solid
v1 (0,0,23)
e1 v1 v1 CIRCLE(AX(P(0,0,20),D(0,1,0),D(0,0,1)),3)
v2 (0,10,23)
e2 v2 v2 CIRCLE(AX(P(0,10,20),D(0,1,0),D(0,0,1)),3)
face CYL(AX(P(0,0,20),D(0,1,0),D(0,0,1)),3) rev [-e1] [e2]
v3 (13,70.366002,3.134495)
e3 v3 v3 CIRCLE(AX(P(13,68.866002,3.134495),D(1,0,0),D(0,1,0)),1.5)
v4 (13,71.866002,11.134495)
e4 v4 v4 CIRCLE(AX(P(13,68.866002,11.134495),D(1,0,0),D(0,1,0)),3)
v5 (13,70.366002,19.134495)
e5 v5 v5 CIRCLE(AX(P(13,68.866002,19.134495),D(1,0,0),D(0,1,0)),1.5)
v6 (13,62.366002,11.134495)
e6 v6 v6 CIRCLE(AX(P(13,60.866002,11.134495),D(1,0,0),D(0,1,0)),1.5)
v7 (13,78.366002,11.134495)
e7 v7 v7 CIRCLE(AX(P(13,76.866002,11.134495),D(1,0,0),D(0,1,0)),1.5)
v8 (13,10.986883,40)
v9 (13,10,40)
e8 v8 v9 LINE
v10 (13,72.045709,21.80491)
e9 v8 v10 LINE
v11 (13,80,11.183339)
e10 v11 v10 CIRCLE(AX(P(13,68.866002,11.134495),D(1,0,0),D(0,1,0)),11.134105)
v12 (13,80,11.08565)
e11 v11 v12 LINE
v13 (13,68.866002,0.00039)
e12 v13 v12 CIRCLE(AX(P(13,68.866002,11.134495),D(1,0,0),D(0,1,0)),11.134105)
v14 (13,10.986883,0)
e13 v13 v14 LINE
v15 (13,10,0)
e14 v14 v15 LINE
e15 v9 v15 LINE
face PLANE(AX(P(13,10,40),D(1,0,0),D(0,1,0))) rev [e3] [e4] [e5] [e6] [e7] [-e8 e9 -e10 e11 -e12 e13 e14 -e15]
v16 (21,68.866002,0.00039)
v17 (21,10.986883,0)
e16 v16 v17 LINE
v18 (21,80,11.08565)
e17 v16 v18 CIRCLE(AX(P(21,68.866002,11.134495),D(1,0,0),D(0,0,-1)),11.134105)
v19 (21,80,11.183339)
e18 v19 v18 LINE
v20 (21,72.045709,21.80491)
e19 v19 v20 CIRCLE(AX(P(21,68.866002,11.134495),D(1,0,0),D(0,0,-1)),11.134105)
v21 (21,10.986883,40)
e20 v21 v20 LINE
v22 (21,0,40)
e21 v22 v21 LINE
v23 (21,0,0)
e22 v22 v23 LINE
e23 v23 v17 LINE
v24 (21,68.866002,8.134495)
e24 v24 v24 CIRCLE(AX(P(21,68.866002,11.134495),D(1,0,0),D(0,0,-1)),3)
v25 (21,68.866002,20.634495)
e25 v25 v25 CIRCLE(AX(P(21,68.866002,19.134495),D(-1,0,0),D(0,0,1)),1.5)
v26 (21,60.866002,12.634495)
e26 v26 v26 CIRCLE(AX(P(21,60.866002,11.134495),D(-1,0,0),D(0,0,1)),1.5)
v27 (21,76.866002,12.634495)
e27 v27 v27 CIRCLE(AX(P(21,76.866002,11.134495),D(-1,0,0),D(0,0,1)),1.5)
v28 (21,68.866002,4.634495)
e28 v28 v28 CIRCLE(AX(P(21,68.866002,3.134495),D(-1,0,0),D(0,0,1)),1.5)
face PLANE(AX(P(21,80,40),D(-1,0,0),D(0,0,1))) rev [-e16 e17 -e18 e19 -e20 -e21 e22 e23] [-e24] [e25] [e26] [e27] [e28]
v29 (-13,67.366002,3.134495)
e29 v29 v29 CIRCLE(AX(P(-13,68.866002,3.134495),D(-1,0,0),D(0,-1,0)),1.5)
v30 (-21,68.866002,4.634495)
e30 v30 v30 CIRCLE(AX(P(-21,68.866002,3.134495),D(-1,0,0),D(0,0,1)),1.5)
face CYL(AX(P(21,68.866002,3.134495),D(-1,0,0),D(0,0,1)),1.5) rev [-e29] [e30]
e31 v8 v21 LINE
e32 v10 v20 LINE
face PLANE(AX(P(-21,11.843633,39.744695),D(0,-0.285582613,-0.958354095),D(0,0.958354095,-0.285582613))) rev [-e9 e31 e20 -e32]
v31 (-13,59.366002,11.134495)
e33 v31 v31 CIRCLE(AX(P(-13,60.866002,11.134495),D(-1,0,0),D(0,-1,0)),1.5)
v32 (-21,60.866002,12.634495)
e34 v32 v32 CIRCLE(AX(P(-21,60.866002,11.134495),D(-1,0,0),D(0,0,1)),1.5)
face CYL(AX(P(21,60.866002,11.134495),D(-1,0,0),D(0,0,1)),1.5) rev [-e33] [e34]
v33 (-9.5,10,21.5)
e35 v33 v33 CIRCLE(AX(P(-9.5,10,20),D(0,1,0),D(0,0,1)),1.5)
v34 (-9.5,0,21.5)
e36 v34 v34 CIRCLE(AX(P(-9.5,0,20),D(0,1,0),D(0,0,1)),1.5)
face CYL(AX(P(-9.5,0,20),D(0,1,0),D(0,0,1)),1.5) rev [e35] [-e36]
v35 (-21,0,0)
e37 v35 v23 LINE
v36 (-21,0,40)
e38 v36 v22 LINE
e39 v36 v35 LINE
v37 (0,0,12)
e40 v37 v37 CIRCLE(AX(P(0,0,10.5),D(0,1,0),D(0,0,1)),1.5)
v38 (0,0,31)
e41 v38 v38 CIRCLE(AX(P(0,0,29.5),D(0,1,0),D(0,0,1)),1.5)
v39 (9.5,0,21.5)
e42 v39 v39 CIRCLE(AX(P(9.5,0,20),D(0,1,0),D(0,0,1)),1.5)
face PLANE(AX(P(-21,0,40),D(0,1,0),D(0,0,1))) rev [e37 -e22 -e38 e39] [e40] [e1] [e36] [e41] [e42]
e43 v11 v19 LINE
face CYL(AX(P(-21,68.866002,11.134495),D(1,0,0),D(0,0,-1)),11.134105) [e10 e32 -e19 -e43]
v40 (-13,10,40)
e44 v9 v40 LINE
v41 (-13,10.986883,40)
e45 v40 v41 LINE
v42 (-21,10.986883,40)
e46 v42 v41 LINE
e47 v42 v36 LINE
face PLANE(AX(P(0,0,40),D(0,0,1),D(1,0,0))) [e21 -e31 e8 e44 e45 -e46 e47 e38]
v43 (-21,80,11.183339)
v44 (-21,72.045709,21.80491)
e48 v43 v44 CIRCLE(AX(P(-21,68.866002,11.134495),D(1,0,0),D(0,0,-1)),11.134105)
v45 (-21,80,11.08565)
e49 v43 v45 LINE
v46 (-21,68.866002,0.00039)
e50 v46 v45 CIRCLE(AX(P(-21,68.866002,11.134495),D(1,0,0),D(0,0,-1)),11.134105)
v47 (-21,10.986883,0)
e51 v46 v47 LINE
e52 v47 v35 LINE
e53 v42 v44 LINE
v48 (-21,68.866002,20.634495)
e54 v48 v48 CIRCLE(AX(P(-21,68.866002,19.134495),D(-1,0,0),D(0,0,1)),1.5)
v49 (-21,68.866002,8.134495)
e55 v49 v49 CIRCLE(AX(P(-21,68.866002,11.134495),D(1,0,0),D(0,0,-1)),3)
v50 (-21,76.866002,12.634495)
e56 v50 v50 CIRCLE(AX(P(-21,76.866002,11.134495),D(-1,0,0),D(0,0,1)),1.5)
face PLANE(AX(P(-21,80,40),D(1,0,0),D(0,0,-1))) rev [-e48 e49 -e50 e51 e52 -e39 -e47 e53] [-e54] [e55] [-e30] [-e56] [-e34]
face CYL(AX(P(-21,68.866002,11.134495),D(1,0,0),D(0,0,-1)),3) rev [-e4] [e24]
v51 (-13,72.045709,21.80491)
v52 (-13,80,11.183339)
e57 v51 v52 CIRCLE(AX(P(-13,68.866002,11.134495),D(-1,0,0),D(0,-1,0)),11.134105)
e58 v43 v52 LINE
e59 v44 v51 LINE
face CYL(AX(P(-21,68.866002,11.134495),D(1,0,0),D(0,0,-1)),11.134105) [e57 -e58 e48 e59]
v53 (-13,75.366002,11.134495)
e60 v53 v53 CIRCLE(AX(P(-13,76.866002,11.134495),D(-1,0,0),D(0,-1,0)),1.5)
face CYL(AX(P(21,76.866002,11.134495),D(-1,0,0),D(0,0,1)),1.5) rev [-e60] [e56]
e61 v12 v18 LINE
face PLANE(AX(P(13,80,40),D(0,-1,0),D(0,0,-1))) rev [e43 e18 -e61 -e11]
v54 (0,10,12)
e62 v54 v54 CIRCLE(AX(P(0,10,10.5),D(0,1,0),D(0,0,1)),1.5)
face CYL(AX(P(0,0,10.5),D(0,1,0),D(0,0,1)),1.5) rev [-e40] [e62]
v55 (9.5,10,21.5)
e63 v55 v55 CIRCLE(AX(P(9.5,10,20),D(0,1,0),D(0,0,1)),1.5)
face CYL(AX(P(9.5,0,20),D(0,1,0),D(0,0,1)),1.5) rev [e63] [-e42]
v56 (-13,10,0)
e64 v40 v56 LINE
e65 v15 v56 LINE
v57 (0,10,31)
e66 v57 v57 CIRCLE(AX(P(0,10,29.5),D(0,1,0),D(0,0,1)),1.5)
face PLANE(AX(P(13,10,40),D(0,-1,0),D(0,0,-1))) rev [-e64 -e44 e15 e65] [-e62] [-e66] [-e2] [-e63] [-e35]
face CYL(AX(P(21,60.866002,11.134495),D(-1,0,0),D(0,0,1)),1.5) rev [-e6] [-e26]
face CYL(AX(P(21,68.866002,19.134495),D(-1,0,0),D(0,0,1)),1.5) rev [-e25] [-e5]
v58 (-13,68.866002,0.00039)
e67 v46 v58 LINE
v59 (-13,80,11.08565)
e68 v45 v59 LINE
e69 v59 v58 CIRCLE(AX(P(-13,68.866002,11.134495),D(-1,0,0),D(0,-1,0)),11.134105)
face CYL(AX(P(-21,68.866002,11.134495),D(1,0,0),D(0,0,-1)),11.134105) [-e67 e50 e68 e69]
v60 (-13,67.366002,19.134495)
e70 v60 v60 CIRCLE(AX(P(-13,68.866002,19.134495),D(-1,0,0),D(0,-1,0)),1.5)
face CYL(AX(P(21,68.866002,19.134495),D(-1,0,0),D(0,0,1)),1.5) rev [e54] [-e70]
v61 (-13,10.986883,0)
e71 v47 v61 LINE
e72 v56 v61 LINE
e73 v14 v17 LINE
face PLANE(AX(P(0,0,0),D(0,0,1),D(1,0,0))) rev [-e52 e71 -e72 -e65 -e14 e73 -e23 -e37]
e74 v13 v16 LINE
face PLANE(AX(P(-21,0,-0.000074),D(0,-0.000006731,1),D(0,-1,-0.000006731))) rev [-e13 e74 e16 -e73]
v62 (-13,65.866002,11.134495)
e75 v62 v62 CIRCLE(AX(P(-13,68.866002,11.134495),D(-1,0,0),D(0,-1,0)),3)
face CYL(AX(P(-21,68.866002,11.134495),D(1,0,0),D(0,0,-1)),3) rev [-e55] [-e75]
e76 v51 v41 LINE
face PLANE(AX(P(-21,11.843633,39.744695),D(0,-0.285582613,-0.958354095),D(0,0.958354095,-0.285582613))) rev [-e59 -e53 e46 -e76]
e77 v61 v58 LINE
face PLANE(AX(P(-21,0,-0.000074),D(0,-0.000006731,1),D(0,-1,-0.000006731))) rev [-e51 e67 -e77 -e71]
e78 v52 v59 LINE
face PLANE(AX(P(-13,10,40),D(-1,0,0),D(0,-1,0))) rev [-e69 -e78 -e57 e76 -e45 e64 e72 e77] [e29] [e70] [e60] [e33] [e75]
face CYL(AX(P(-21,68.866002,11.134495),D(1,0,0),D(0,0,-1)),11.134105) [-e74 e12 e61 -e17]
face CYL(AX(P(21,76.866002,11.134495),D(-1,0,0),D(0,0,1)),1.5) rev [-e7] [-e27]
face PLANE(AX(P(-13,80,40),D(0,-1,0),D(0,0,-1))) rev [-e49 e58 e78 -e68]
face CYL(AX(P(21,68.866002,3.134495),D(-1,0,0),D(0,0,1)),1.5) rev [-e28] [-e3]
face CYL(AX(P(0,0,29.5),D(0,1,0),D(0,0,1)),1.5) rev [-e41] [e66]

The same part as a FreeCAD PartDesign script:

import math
import FreeCAD as App
import Part
import Sketcher
Q = App.Units.Quantity

doc = App.newDocument("Part")
body = doc.addObject("PartDesign::Body", "Body")

# Sketch on XY plane
sketch1 = doc.addObject("Sketcher::SketchObject", "Sketch")
body.addObject(sketch1)
sketch1.AttachmentSupport = (doc.XY_Plane, [""])
sketch1.MapMode = "FlatFace"
sketch1.addGeometry([
    Part.LineSegment(App.Vector(13, 10, 0), App.Vector(-13, 10, 0)),  # 0
    Part.LineSegment(App.Vector(-13, 10, 0), App.Vector(-13, 80, 0)),  # 1
    Part.LineSegment(App.Vector(-13, 80, 0), App.Vector(-21, 80, 0)),  # 2
    Part.LineSegment(App.Vector(-21, 80, 0), App.Vector(-21, 0, 0)),  # 3
    Part.LineSegment(App.Vector(-21, 0, 0), App.Vector(21, 0, 0)),  # 4
    Part.LineSegment(App.Vector(21, 0, 0), App.Vector(21, 80, 0)),  # 5
    Part.LineSegment(App.Vector(21, 80, 0), App.Vector(13, 80, 0)),  # 6
    Part.LineSegment(App.Vector(13, 80, 0), App.Vector(13, 10, 0)),  # 7
], False)
sketch1.addConstraint([
    Sketcher.Constraint("Coincident", 0, 2, 1, 1),
    Sketcher.Constraint("Coincident", 1, 2, 2, 1),
    Sketcher.Constraint("Coincident", 2, 2, 3, 1),
    Sketcher.Constraint("Coincident", 3, 2, 4, 1),
    Sketcher.Constraint("Coincident", 4, 2, 5, 1),
    Sketcher.Constraint("Coincident", 5, 2, 6, 1),
    Sketcher.Constraint("Coincident", 6, 2, 7, 1),
    Sketcher.Constraint("Coincident", 7, 2, 0, 1),
    Sketcher.Constraint("Horizontal", 0),
    Sketcher.Constraint("Vertical", 1),
    Sketcher.Constraint("Horizontal", 2),
    Sketcher.Constraint("Vertical", 3),
    Sketcher.Constraint("Horizontal", 4),
    Sketcher.Constraint("Vertical", 5),
    Sketcher.Constraint("Horizontal", 6),
    Sketcher.Constraint("Vertical", 7),
    Sketcher.Constraint("Symmetric", 3, 2, 4, 2, -1, 1),
    Sketcher.Constraint("Symmetric", 1, 2, 6, 2, -2),
    Sketcher.Constraint("DistanceX", 0, 2, 0, 1, Q("26 mm")),
    Sketcher.Constraint("DistanceX", 2, 2, 2, 1, Q("8 mm")),
    Sketcher.Constraint("DistanceY", 1, 1, 1, 2, Q("70 mm")),
    Sketcher.Constraint("DistanceY", 3, 2, 3, 1, Q("80 mm")),
])
pad1 = doc.addObject("PartDesign::Pad", "Pad")
body.addObject(pad1)
pad1.Profile = sketch1
pad1.Length = 40

# Sketch on YZ plane
sketch2 = doc.addObject("Sketcher::SketchObject", "Sketch001")
body.addObject(sketch2)
sketch2.AttachmentSupport = (doc.YZ_Plane, [""])
sketch2.MapMode = "FlatFace"
sketch2.AttachmentOffset = App.Placement(App.Vector(0, 0, 21), App.Rotation())
sketch2.addGeometry([
    Part.LineSegment(App.Vector(80, 40, 0), App.Vector(10.986883, 40, 0)),  # 0
    Part.LineSegment(App.Vector(10.986883, 40, 0), App.Vector(72.045709, 21.80491, 0)),  # 1
    Part.ArcOfCircle(Part.Circle(App.Vector(68.866002, 11.134495, 0), App.Vector(0, 0, 1), 11.134105), math.radians(0.251354), math.radians(73.406323)),  # 2
    Part.LineSegment(App.Vector(80, 11.183339, 0), App.Vector(80, 40, 0)),  # 3
    Part.LineSegment(App.Vector(68.866002, 0.00039, 0), App.Vector(10.986883, 0, 0)),  # 4
    Part.LineSegment(App.Vector(10.986883, 0, 0), App.Vector(80, 0, 0)),  # 5
    Part.LineSegment(App.Vector(80, 0, 0), App.Vector(80, 11.08565, 0)),  # 6
    Part.ArcOfCircle(Part.Circle(App.Vector(68.866002, 11.134495, 0), App.Vector(0, 0, 1), 11.134105), math.radians(-90), math.radians(-0.251354)),  # 7
    Part.Circle(App.Vector(68.866002, 11.134495, 0), App.Vector(0, 0, 1), 3),  # 8
], False)
sketch2.addConstraint([
    Sketcher.Constraint("Coincident", 0, 2, 1, 1),
    Sketcher.Constraint("Tangent", 1, 2, 2, 2),
    Sketcher.Constraint("Coincident", 2, 1, 3, 1),
    Sketcher.Constraint("Coincident", 3, 2, 0, 1),
    Sketcher.Constraint("Coincident", 4, 2, 5, 1),
    Sketcher.Constraint("Coincident", 5, 2, 6, 1),
    Sketcher.Constraint("Coincident", 6, 2, 7, 2),
    Sketcher.Constraint("Coincident", 7, 1, 4, 1),
    Sketcher.Constraint("Horizontal", 0),
    Sketcher.Constraint("Vertical", 3),
    Sketcher.Constraint("Horizontal", 5),
    Sketcher.Constraint("Vertical", 6),
    Sketcher.Constraint("Coincident", 7, 3, 2, 3),
    Sketcher.Constraint("Coincident", 8, 3, 2, 3),
    Sketcher.Constraint("Equal", 2, 7),
    Sketcher.Constraint("PointOnObject", 4, 2, -1),
    Sketcher.Constraint("Vertical", 0, 2, 4, 2),
    Sketcher.Constraint("Vertical", 3, 2, 5, 2),
    Sketcher.Constraint("Vertical", 8, 3, 7, 1),
    Sketcher.Constraint("Diameter", 8, Q("6 mm")),
    Sketcher.Constraint("DistanceY", -1, 1, 0, 2, Q("40 mm")),
    Sketcher.Constraint("DistanceX", -1, 1, 2, 1, Q("80 mm")),
    Sketcher.Constraint("Radius", 2, Q("11.134105 mm")),
    Sketcher.Constraint("DistanceY", 3, 1, 3, 2, Q("28.816661 mm")),
    Sketcher.Constraint("DistanceY", 6, 1, 6, 2, Q("11.08565 mm")),
    Sketcher.Constraint("Distance", 4, Q("57.87912 mm")),
])
pocket1 = doc.addObject("PartDesign::Pocket", "Pocket")
body.addObject(pocket1)
pocket1.Profile = sketch2
pocket1.Type = "ThroughAll"

# Sketch on XZ plane
sketch3 = doc.addObject("Sketcher::SketchObject", "Sketch002")
body.addObject(sketch3)
sketch3.AttachmentSupport = (doc.XZ_Plane, [""])
sketch3.MapMode = "FlatFace"
sketch3.AttachmentOffset = App.Placement(App.Vector(0, 0, -10), App.Rotation())
sketch3.addGeometry([
    Part.Circle(App.Vector(0, 20, 0), App.Vector(0, 0, 1), 3),  # 0
    Part.Circle(App.Vector(0, 10.5, 0), App.Vector(0, 0, 1), 1.5),  # 1
    Part.Circle(App.Vector(9.5, 20, 0), App.Vector(0, 0, 1), 1.5),  # 2
    Part.Circle(App.Vector(0, 29.5, 0), App.Vector(0, 0, 1), 1.5),  # 3
    Part.Circle(App.Vector(-9.5, 20, 0), App.Vector(0, 0, 1), 1.5),  # 4
], False)
sketch3.addConstraint([
    Sketcher.Constraint("Equal", 1, 2),
    Sketcher.Constraint("Equal", 2, 3),
    Sketcher.Constraint("Equal", 3, 4),
    Sketcher.Constraint("Symmetric", 2, 3, 4, 3, -2),
    Sketcher.Constraint("PointOnObject", 0, 3, -2),
    Sketcher.Constraint("PointOnObject", 1, 3, -2),
    Sketcher.Constraint("PointOnObject", 3, 3, -2),
    Sketcher.Constraint("Horizontal", 0, 3, 2, 3),
    Sketcher.Constraint("Diameter", 0, Q("6 mm")),
    Sketcher.Constraint("Diameter", 1, Q("3 mm")),
    Sketcher.Constraint("DistanceY", -1, 1, 0, 3, Q("20 mm")),
    Sketcher.Constraint("DistanceY", 1, 3, 3, 3, Q("19 mm")),
    Sketcher.Constraint("DistanceX", 4, 3, 2, 3, Q("19 mm")),
    Sketcher.Constraint("DistanceY", -1, 1, 1, 3, Q("10.5 mm")),
])
pocket2 = doc.addObject("PartDesign::Pocket", "Pocket001")
body.addObject(pocket2)
pocket2.Profile = sketch3
pocket2.Type = "ThroughAll"
pocket2.Reversed = True

# Sketch on YZ plane
sketch4 = doc.addObject("Sketcher::SketchObject", "Sketch003")
body.addObject(sketch4)
sketch4.AttachmentSupport = (doc.YZ_Plane, [""])
sketch4.MapMode = "FlatFace"
sketch4.AttachmentOffset = App.Placement(App.Vector(0, 0, -21), App.Rotation())
sketch4.addGeometry([
    Part.Circle(App.Vector(68.9, 3.1, 0), App.Vector(0, 0, 1), 1.5),
    Part.Circle(App.Vector(76.9, 11.1, 0), App.Vector(0, 0, 1), 1.5),
    Part.Circle(App.Vector(68.9, 19.1, 0), App.Vector(0, 0, 1), 1.5),
    Part.Circle(App.Vector(60.9, 11.1, 0), App.Vector(0, 0, 1), 1.5),
], False)
sketch4.addConstraint([
    Sketcher.Constraint("Equal", 0, 1),
    Sketcher.Constraint("Equal", 1, 2),
    Sketcher.Constraint("Equal", 2, 3),
    Sketcher.Constraint("Horizontal", 1, 3, 3, 3),
    Sketcher.Constraint("Vertical", 0, 3, 2, 3),
    Sketcher.Constraint("Diameter", 0, Q("3 mm")),
    Sketcher.Constraint("DistanceX", 0, 3, 1, 3, Q("8 mm")),
    Sketcher.Constraint("DistanceY", 0, 3, 1, 3, Q("8 mm")),
    Sketcher.Constraint("DistanceY", 1, 3, 2, 3, Q("8 mm")),
    Sketcher.Constraint("DistanceX", 3, 3, 0, 3, Q("8 mm")),
    Sketcher.Constraint("DistanceX", -1, 1, 0, 3, Q("68.866002 mm")),
    Sketcher.Constraint("DistanceY", -1, 1, 0, 3, Q("3.134495 mm")),
])
pocket3 = doc.addObject("PartDesign::Pocket", "Pocket002")
body.addObject(pocket3)
pocket3.Profile = sketch4
pocket3.Type = "ThroughAll"
pocket3.Reversed = True

doc.recompute()
